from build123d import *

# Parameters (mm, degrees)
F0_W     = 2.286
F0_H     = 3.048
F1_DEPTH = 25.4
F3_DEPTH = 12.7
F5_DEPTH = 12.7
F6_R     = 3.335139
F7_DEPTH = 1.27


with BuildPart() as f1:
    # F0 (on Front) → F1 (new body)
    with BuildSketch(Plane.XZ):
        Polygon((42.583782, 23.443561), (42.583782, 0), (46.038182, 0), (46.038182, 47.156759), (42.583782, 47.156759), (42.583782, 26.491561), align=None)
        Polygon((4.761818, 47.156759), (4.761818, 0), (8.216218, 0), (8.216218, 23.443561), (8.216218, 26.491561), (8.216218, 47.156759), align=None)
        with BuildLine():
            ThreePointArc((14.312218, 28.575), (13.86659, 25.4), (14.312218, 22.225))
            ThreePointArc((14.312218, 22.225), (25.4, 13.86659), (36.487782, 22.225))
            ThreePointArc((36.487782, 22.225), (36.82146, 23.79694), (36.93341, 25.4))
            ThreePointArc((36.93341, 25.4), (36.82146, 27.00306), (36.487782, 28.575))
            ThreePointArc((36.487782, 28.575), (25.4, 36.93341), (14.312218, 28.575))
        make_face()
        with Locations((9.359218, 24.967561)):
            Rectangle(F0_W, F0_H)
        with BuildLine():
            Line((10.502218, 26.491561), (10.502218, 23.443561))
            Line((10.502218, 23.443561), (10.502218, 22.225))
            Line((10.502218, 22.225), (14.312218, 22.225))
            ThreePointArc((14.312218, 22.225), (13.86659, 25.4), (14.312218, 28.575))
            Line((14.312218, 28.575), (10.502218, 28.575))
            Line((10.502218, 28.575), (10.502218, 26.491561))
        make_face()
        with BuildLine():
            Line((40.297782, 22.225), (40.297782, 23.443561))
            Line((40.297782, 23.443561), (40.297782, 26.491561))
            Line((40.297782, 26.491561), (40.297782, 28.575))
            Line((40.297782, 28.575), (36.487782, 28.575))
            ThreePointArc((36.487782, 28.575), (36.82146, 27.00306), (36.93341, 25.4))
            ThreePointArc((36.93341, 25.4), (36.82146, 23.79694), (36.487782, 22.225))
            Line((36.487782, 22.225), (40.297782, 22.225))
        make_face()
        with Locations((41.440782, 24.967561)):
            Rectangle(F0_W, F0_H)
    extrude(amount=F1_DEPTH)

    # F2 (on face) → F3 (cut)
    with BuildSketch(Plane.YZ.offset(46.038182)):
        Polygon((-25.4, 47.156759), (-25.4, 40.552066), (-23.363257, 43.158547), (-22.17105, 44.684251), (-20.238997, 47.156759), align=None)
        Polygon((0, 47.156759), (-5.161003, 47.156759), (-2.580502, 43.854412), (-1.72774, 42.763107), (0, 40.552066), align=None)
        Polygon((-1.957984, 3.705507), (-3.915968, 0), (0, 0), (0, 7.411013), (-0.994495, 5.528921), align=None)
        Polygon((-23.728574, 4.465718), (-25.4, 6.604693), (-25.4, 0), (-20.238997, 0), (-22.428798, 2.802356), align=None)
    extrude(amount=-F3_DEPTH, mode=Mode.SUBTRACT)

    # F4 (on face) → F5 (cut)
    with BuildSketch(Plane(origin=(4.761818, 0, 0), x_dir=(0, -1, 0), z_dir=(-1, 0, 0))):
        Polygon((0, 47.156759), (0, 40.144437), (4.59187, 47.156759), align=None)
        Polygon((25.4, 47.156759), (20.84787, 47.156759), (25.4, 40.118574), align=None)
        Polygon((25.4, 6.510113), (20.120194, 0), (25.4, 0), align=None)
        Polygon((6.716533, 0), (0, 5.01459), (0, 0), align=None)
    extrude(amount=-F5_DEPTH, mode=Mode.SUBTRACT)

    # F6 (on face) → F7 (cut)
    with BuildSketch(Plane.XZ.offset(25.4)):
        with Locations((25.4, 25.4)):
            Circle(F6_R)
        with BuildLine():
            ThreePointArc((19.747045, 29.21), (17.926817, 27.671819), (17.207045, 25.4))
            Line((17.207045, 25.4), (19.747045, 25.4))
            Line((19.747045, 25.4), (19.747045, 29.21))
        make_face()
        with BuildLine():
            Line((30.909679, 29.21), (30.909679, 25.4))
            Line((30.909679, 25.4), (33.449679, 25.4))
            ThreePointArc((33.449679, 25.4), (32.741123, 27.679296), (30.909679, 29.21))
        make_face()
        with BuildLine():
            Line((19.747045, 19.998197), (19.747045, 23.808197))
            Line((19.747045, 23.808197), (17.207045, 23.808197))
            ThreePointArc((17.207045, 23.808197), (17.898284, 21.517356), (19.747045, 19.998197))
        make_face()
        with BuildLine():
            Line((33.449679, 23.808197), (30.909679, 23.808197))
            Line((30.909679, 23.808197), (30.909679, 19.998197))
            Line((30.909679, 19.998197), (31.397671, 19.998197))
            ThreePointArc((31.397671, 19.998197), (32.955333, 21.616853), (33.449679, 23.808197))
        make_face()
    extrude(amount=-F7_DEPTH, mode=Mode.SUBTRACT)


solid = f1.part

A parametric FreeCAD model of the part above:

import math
import FreeCAD as App
import Part
import Sketcher
Q = App.Units.Quantity


def add_polygon(sketch, points):
    """Adds a closed chain of lines whose ends are joined by coincident constraints."""
    first, n = sketch.GeometryCount, len(points)
    for a, b in zip(points, points[1:] + points[:1]):
        sketch.addGeometry(Part.LineSegment(App.Vector(*a, 0), App.Vector(*b, 0)), False)
    for i in range(n):
        sketch.addConstraint(Sketcher.Constraint("Coincident", first + i, 2, first + (i + 1) % n, 1))

doc = App.newDocument("Part")
params = doc.addObject("Spreadsheet::Sheet", "Params")
for row, (alias, value) in enumerate([
    ("sketch1_width", "0.09 in"),
    ("sketch1_width2", "0.15 in"),
    ("sketch1_width3", "0.136 in"),
    ("pad1_length", "1 in"),
    ("sketch2_length", "0.165 in"),
    ("pocket1_length", "0.5 in"),
    ("sketch3_length", "0.33 in"),
    ("pocket2_length", "0.5 in"),
    ("sketch4_width", "0.1 in"),
    ("sketch4_height", "0.15 in"),
    ("pocket3_length", "0.05 in"),
], start=1):
    params.set(f"A{row}", alias)
    params.set(f"B{row}", "=" + value)
    params.setAlias(f"B{row}", alias)

body = doc.addObject("PartDesign::Body", "Body")

sketch1 = body.newObject("Sketcher::SketchObject", "Sketch")
sketch1.AttachmentSupport = (doc.getObject("XZ_Plane"), [""])
sketch1.MapMode = "FlatFace"
sketch1.addGeometry(Part.LineSegment(App.Vector(42.6, 0, 0), App.Vector(46, 0, 0)), False)
sketch1.addGeometry(Part.LineSegment(App.Vector(46, 0, 0), App.Vector(46, 47.2, 0)), False)
sketch1.addGeometry(Part.LineSegment(App.Vector(46, 47.2, 0), App.Vector(42.6, 47.2, 0)), False)
sketch1.addGeometry(Part.LineSegment(App.Vector(42.6, 47.2, 0), App.Vector(42.6, 26.5, 0)), False)
sketch1.addGeometry(Part.LineSegment(App.Vector(42.6, 26.5, 0), App.Vector(40.3, 26.5, 0)), False)
sketch1.addGeometry(Part.LineSegment(App.Vector(40.3, 26.5, 0), App.Vector(40.3, 28.6, 0)), False)
sketch1.addGeometry(Part.LineSegment(App.Vector(40.3, 28.6, 0), App.Vector(36.5, 28.6, 0)), False)
sketch1.addGeometry(Part.ArcOfCircle(Part.Circle(App.Vector(25.4, 25.4, 0), App.Vector(0, 0, 1), 11.5), math.radians(16), math.radians(164)), False)
sketch1.addGeometry(Part.LineSegment(App.Vector(14.3, 28.6, 0), App.Vector(10.5, 28.6, 0)), False)
sketch1.addGeometry(Part.LineSegment(App.Vector(10.5, 28.6, 0), App.Vector(10.5, 26.5, 0)), False)
sketch1.addGeometry(Part.LineSegment(App.Vector(10.5, 26.5, 0), App.Vector(8.2, 26.5, 0)), False)
sketch1.addGeometry(Part.LineSegment(App.Vector(8.2, 26.5, 0), App.Vector(8.2, 47.2, 0)), False)
sketch1.addGeometry(Part.LineSegment(App.Vector(8.2, 47.2, 0), App.Vector(4.8, 47.2, 0)), False)
sketch1.addGeometry(Part.LineSegment(App.Vector(4.8, 47.2, 0), App.Vector(4.8, 0, 0)), False)
sketch1.addGeometry(Part.LineSegment(App.Vector(4.8, 0, 0), App.Vector(8.2, 0, 0)), False)
sketch1.addGeometry(Part.LineSegment(App.Vector(8.2, 0, 0), App.Vector(8.2, 23.4, 0)), False)
sketch1.addGeometry(Part.LineSegment(App.Vector(8.2, 23.4, 0), App.Vector(10.5, 23.4, 0)), False)
sketch1.addGeometry(Part.LineSegment(App.Vector(10.5, 23.4, 0), App.Vector(10.5, 22.2, 0)), False)
sketch1.addGeometry(Part.LineSegment(App.Vector(10.5, 22.2, 0), App.Vector(14.3, 22.2, 0)), False)
sketch1.addGeometry(Part.ArcOfCircle(Part.Circle(App.Vector(25.4, 25.4, 0), App.Vector(0, 0, 1), 11.5), math.radians(-164), math.radians(-16)), False)
sketch1.addGeometry(Part.LineSegment(App.Vector(36.5, 22.2, 0), App.Vector(40.3, 22.2, 0)), False)
sketch1.addGeometry(Part.LineSegment(App.Vector(40.3, 22.2, 0), App.Vector(40.3, 23.4, 0)), False)
sketch1.addGeometry(Part.LineSegment(App.Vector(40.3, 23.4, 0), App.Vector(42.6, 23.4, 0)), False)
sketch1.addGeometry(Part.LineSegment(App.Vector(42.6, 23.4, 0), App.Vector(42.6, 0, 0)), False)
sketch1.addConstraint(Sketcher.Constraint("Coincident", 0, 2, 1, 1))
sketch1.addConstraint(Sketcher.Constraint("Coincident", 1, 2, 2, 1))
sketch1.addConstraint(Sketcher.Constraint("Coincident", 2, 2, 3, 1))
sketch1.addConstraint(Sketcher.Constraint("Coincident", 3, 2, 4, 1))
sketch1.addConstraint(Sketcher.Constraint("Coincident", 4, 2, 5, 1))
sketch1.addConstraint(Sketcher.Constraint("Coincident", 5, 2, 6, 1))
sketch1.addConstraint(Sketcher.Constraint("Coincident", 6, 2, 7, 1))
sketch1.addConstraint(Sketcher.Constraint("Coincident", 7, 2, 8, 1))
sketch1.addConstraint(Sketcher.Constraint("Coincident", 8, 2, 9, 1))
sketch1.addConstraint(Sketcher.Constraint("Coincident", 9, 2, 10, 1))
sketch1.addConstraint(Sketcher.Constraint("Coincident", 10, 2, 11, 1))
sketch1.addConstraint(Sketcher.Constraint("Coincident", 11, 2, 12, 1))
sketch1.addConstraint(Sketcher.Constraint("Coincident", 12, 2, 13, 1))
sketch1.addConstraint(Sketcher.Constraint("Coincident", 13, 2, 14, 1))
sketch1.addConstraint(Sketcher.Constraint("Coincident", 14, 2, 15, 1))
sketch1.addConstraint(Sketcher.Constraint("Coincident", 15, 2, 16, 1))
sketch1.addConstraint(Sketcher.Constraint("Coincident", 16, 2, 17, 1))
sketch1.addConstraint(Sketcher.Constraint("Coincident", 17, 2, 18, 1))
sketch1.addConstraint(Sketcher.Constraint("Coincident", 18, 2, 19, 1))
sketch1.addConstraint(Sketcher.Constraint("Coincident", 19, 2, 20, 1))
sketch1.addConstraint(Sketcher.Constraint("Coincident", 20, 2, 21, 1))
sketch1.addConstraint(Sketcher.Constraint("Coincident", 21, 2, 22, 1))
sketch1.addConstraint(Sketcher.Constraint("Coincident", 22, 2, 23, 1))
sketch1.addConstraint(Sketcher.Constraint("Coincident", 23, 2, 0, 1))
sketch1.addConstraint(Sketcher.Constraint("Horizontal", 0))
sketch1.addConstraint(Sketcher.Constraint("Vertical", 1))
sketch1.addConstraint(Sketcher.Constraint("Horizontal", 2))
sketch1.addConstraint(Sketcher.Constraint("Vertical", 3))
sketch1.addConstraint(Sketcher.Constraint("Horizontal", 4))
sketch1.addConstraint(Sketcher.Constraint("Vertical", 5))
sketch1.addConstraint(Sketcher.Constraint("Horizontal", 6))
sketch1.addConstraint(Sketcher.Constraint("Horizontal", 8))
sketch1.addConstraint(Sketcher.Constraint("Vertical", 9))
sketch1.addConstraint(Sketcher.Constraint("Horizontal", 10))
sketch1.addConstraint(Sketcher.Constraint("Vertical", 11))
sketch1.addConstraint(Sketcher.Constraint("Horizontal", 12))
sketch1.addConstraint(Sketcher.Constraint("Vertical", 13))
sketch1.addConstraint(Sketcher.Constraint("Horizontal", 14))
sketch1.addConstraint(Sketcher.Constraint("Vertical", 15))
sketch1.addConstraint(Sketcher.Constraint("Horizontal", 16))
sketch1.addConstraint(Sketcher.Constraint("Vertical", 17))
sketch1.addConstraint(Sketcher.Constraint("Horizontal", 18))
sketch1.addConstraint(Sketcher.Constraint("Horizontal", 20))
sketch1.addConstraint(Sketcher.Constraint("Vertical", 21))
sketch1.addConstraint(Sketcher.Constraint("Horizontal", 22))
sketch1.addConstraint(Sketcher.Constraint("Vertical", 23))
sketch1.addConstraint(Sketcher.Constraint("Coincident", 19, 3, 7, 3))
sketch1.addConstraint(Sketcher.Constraint("Equal", 7, 19))
sketch1.addConstraint(Sketcher.Constraint("PointOnObject", 0, 2, -1))
sketch1.addConstraint(Sketcher.Constraint("PointOnObject", 13, 2, -1))
sketch1.addConstraint(Sketcher.Constraint("Horizontal", 6, 2, 7, 2))
sketch1.addConstraint(Sketcher.Constraint("Horizontal", 4, 2, 9, 2))
sketch1.addConstraint(Sketcher.Constraint("Horizontal", 2, 2, 11, 2))
sketch1.addConstraint(Sketcher.Constraint("Horizontal", 18, 2, 19, 2))
sketch1.addConstraint(Sketcher.Constraint("Horizontal", 16, 2, 21, 2))
sketch1.addConstraint(Sketcher.Constraint("Vertical", 11, 2, 14, 2))
sketch1.addConstraint(Sketcher.Constraint("Vertical", 9, 2, 16, 2))
sketch1.addConstraint(Sketcher.Constraint("Vertical", 7, 2, 18, 2))
sketch1.addConstraint(Sketcher.Constraint("Vertical", 5, 2, 20, 2))
sketch1.addConstraint(Sketcher.Constraint("Vertical", 3, 2, 22, 2))
sketch1.addConstraint(Sketcher.Constraint("Equal", 6, 8))
sketch1.addConstraint(Sketcher.Constraint("Equal", 4, 10))
sketch1.addConstraint(Sketcher.Constraint("Equal", 2, 12))
sketch1.addConstraint(Sketcher.Constraint("DistanceX", -1, 1, 7, 3, Q("1 in")))
sketch1.addConstraint(Sketcher.Constraint("DistanceY", -1, 1, 7, 3, Q("1 in")))
sketch1.addConstraint(Sketcher.Constraint("DistanceX", 4, 2, 4, 1, Q("0.09 in")))
sketch1.addConstraint(Sketcher.Constraint("DistanceX", 6, 2, 6, 1, Q("0.15 in")))
sketch1.addConstraint(Sketcher.Constraint("DistanceX", 0, 1, 0, 2, Q("0.136 in")))
sketch1.addConstraint(Sketcher.Constraint("DistanceY", 15, 2, 10, 2, Q("0.12 in")))
sketch1.addConstraint(Sketcher.Constraint("DistanceY", 17, 2, 8, 2, Q("0.25 in")))
sketch1.addConstraint(Sketcher.Constraint("Radius", 7, 11.533409))
sketch1.addConstraint(Sketcher.Constraint("DistanceY", 3, 2, 3, 1, 20.665198))
sketch1.addConstraint(Sketcher.Constraint("DistanceY", 1, 1, 1, 2, 47.156759))
sketch1.setExpression("Constraints[65]", "Params.sketch1_width")
sketch1.setExpression("Constraints[66]", "Params.sketch1_width2")
sketch1.setExpression("Constraints[67]", "Params.sketch1_width3")
pad1 = body.newObject("PartDesign::Pad", "Pad")
pad1.Profile = sketch1
pad1.setExpression("Length", "Params.pad1_length")

sketch2 = body.newObject("Sketcher::SketchObject", "Sketch001")
sketch2.AttachmentSupport = (doc.getObject("YZ_Plane"), [""])
sketch2.MapMode = "FlatFace"
sketch2.AttachmentOffset = App.Placement(App.Vector(0, 0, 46.038182), App.Rotation())
add_polygon(sketch2, [(-25.4, 47.2), (-25.4, 40.6), (-23.4, 43.2), (-22.2, 44.7), (-20.2, 47.2)])
add_polygon(sketch2, [(0, 47.2), (-5.2, 47.2), (-2.6, 43.9), (-1.7, 42.8), (0, 40.6)])
add_polygon(sketch2, [(-2, 3.7), (-3.9, 0), (0, 0), (0, 7.4), (-1, 5.5)])
add_polygon(sketch2, [(-23.7, 4.5), (-25.4, 6.6), (-25.4, 0), (-20.2, 0), (-22.4, 2.8)])
sketch2.addConstraint(Sketcher.Constraint("Vertical", 0))
sketch2.addConstraint(Sketcher.Constraint("Horizontal", 4))
sketch2.addConstraint(Sketcher.Constraint("Horizontal", 5))
sketch2.addConstraint(Sketcher.Constraint("Vertical", 9))
sketch2.addConstraint(Sketcher.Constraint("Horizontal", 11))
sketch2.addConstraint(Sketcher.Constraint("Vertical", 12))
sketch2.addConstraint(Sketcher.Constraint("Vertical", 16))
sketch2.addConstraint(Sketcher.Constraint("Horizontal", 17))
sketch2.addConstraint(Sketcher.Constraint("Coincident", 11, 2, -1, 1))
sketch2.addConstraint(Sketcher.Constraint("PointOnObject", 8, 2, -2))
sketch2.addConstraint(Sketcher.Constraint("PointOnObject", 16, 2, -1))
sketch2.addConstraint(Sketcher.Constraint("Parallel", 1, 2))
sketch2.addConstraint(Sketcher.Constraint("Parallel", 2, 3))
sketch2.addConstraint(Sketcher.Constraint("Parallel", 6, 7))
sketch2.addConstraint(Sketcher.Constraint("Parallel", 7, 8))
sketch2.addConstraint(Sketcher.Constraint("Parallel", 10, 13))
sketch2.addConstraint(Sketcher.Constraint("Parallel", 13, 14))
sketch2.addConstraint(Sketcher.Constraint("Parallel", 8, 15))
sketch2.addConstraint(Sketcher.Constraint("Parallel", 15, 18))
sketch2.addConstraint(Sketcher.Constraint("Parallel", 18, 19))
sketch2.addConstraint(Sketcher.Constraint("Horizontal", 4, 2, 5, 2))
sketch2.addConstraint(Sketcher.Constraint("Horizontal", 0, 2, 8, 2))
sketch2.addConstraint(Sketcher.Constraint("Vertical", 4, 2, 15, 2))
sketch2.addConstraint(Sketcher.Constraint("Vertical", 3, 2, 17, 2))
sketch2.addConstraint(Sketcher.Constraint("Equal", 4, 5))
sketch2.addConstraint(Sketcher.Constraint("Equal", 6, 10))
sketch2.addConstraint(Sketcher.Constraint("DistanceX", 0, 2, -1, 1, Q("1 in")))
sketch2.addConstraint(Sketcher.Constraint("Distance", 6, Q("0.165 in")))
sketch2.addConstraint(Sketcher.Constraint("DistanceX", 18, 2, -1, 1, 22.428798))
sketch2.addConstraint(Sketcher.Constraint("DistanceX", 5, 2, 6, 2, 2.580501))
sketch2.addConstraint(Sketcher.Constraint("DistanceY", 12, 2, 6, 2, 36.443399))
sketch2.addConstraint(Sketcher.Constraint("DistanceX", 18, 2, 17, 2, 2.189801))
sketch2.addConstraint(Sketcher.Constraint("Distance", 1, 3.307879))
sketch2.addConstraint(Sketcher.Constraint("Distance", 19, 2.110969))
sketch2.addConstraint(Sketcher.Constraint("DistanceX", 11, 1, 11, 2, 3.915968))
sketch2.addConstraint(Sketcher.Constraint("DistanceY", 12, 1, 12, 2, 7.411013))
sketch2.addConstraint(Sketcher.Constraint("DistanceX", 2, 2, -1, 1, 22.17105))
sketch2.addConstraint(Sketcher.Constraint("DistanceX", 7, 2, -1, 1, 1.72774))
sketch2.addConstraint(Sketcher.Constraint("DistanceY", -1, 1, 13, 2, 5.528921))
sketch2.setExpression("Constraints[47]", "Params.sketch2_length")
pocket1 = body.newObject("PartDesign::Pocket", "Pocket")
pocket1.Profile = sketch2
pocket1.setExpression("Length", "Params.pocket1_length")

sketch3 = body.newObject("Sketcher::SketchObject", "Sketch002")
sketch3.AttachmentSupport = (doc.getObject("YZ_Plane"), [""])
sketch3.MapMode = "FlatFace"
sketch3.AttachmentOffset = App.Placement(App.Vector(0, 0, 4.761818), App.Rotation())
add_polygon(sketch3, [(0, 47.2), (0, 40.1), (-4.6, 47.2)])
add_polygon(sketch3, [(-25.4, 47.2), (-20.8, 47.2), (-25.4, 40.1)])
add_polygon(sketch3, [(-25.4, 6.5), (-20.1, 0), (-25.4, 0)])
add_polygon(sketch3, [(-6.7, 0), (0, 5), (0, 0)])
sketch3.addConstraint(Sketcher.Constraint("Vertical", 0))
sketch3.addConstraint(Sketcher.Constraint("Horizontal", 2))
sketch3.addConstraint(Sketcher.Constraint("Horizontal", 3))
sketch3.addConstraint(Sketcher.Constraint("Vertical", 5))
sketch3.addConstraint(Sketcher.Constraint("Horizontal", 7))
sketch3.addConstraint(Sketcher.Constraint("Vertical", 8))
sketch3.addConstraint(Sketcher.Constraint("Vertical", 10))
sketch3.addConstraint(Sketcher.Constraint("Horizontal", 11))
sketch3.addConstraint(Sketcher.Constraint("Coincident", 10, 2, -1, 1))
sketch3.addConstraint(Sketcher.Constraint("PointOnObject", 0, 2, -2))
sketch3.addConstraint(Sketcher.Constraint("PointOnObject", 6, 2, -1))
sketch3.addConstraint(Sketcher.Constraint("Horizontal", 2, 2, 3, 2))
sketch3.addConstraint(Sketcher.Constraint("Vertical", 5, 2, 7, 2))
sketch3.addConstraint(Sketcher.Constraint("Equal", 1, 4))
sketch3.addConstraint(Sketcher.Constraint("Equal", 4, 6))
sketch3.addConstraint(Sketcher.Constraint("Equal", 6, 9))
sketch3.addConstraint(Sketcher.Constraint("DistanceX", 4, 2, -1, 1, Q("1 in")))
sketch3.addConstraint(Sketcher.Constraint("Distance", 1, Q("0.33 in")))
sketch3.addConstraint(Sketcher.Constraint("DistanceX", 3, 2, 1, 2, Q("0.64 in")))
sketch3.addConstraint(Sketcher.Constraint("DistanceX", 2, 1, 2, 2, 4.59187))
sketch3.addConstraint(Sketcher.Constraint("DistanceY", 10, 2, 10, 1, 5.01459))
sketch3.addConstraint(Sketcher.Constraint("DistanceX", 7, 2, 7, 1, 5.279806))
sketch3.addConstraint(Sketcher.Constraint("DistanceY", -1, 1, 1, 2, 47.156759))
sketch3.setExpression("Constraints[29]", "Params.sketch3_length")
pocket2 = body.newObject("PartDesign::Pocket", "Pocket001")
pocket2.Profile = sketch3
pocket2.setExpression("Length", "Params.pocket2_length")
pocket2.Reversed = True

sketch4 = body.newObject("Sketcher::SketchObject", "Sketch003")
sketch4.AttachmentSupport = (doc.getObject("XZ_Plane"), [""])
sketch4.MapMode = "FlatFace"
sketch4.AttachmentOffset = App.Placement(App.Vector(0, 0, 1 * 25.4), App.Rotation())
sketch4.addGeometry(Part.Circle(App.Vector(25.4, 25.4, 0), App.Vector(0, 0, 1), 3.34), False)
sketch4.addGeometry(Part.ArcOfCircle(Part.Circle(App.Vector(21.5, 25.29, 0), App.Vector(0, 0, 1), 4.29), math.radians(114), math.radians(179)), False)
sketch4.addGeometry(Part.LineSegment(App.Vector(17.21, 25.4, 0), App.Vector(19.75, 25.4, 0)), False)
sketch4.addGeometry(Part.LineSegment(App.Vector(19.75, 25.4, 0), App.Vector(19.75, 29.21, 0)), False)
sketch4.addGeometry(Part.LineSegment(App.Vector(30.91, 29.21, 0), App.Vector(30.91, 25.4, 0)), False)
sketch4.addGeometry(Part.LineSegment(App.Vector(30.91, 25.4, 0), App.Vector(33.45, 25.4, 0)), False)
sketch4.addGeometry(Part.ArcOfCircle(Part.Circle(App.Vector(29.23, 25.34, 0), App.Vector(0, 0, 1), 4.22), math.radians(1), math.radians(67)), False)
sketch4.addGeometry(Part.LineSegment(App.Vector(19.75, 20, 0), App.Vector(19.75, 23.81, 0)), False)
sketch4.addGeometry(Part.LineSegment(App.Vector(19.75, 23.81, 0), App.Vector(17.21, 23.81, 0)), False)
sketch4.addGeometry(Part.ArcOfCircle(Part.Circle(App.Vector(21.32, 23.8, 0), App.Vector(0, 0, 1), 4.12), math.radians(180), math.radians(247)), False)
sketch4.addGeometry(Part.LineSegment(App.Vector(33.45, 23.81, 0), App.Vector(30.91, 23.81, 0)), False)
sketch4.addGeometry(Part.LineSegment(App.Vector(30.91, 23.81, 0), App.Vector(30.91, 20, 0)), False)
sketch4.addGeometry(Part.LineSegment(App.Vector(30.91, 20, 0), App.Vector(31.4, 20, 0)), False)
sketch4.addGeometry(Part.ArcOfCircle(Part.Circle(App.Vector(29.28, 23.6, 0), App.Vector(0, 0, 1), 4.18), math.radians(-59), math.radians(3)), False)
sketch4.addConstraint(Sketcher.Constraint("Coincident", 1, 2, 2, 1))
sketch4.addConstraint(Sketcher.Constraint("Coincident", 2, 2, 3, 1))
sketch4.addConstraint(Sketcher.Constraint("Coincident", 3, 2, 1, 1))
sketch4.addConstraint(Sketcher.Constraint("Coincident", 4, 2, 5, 1))
sketch4.addConstraint(Sketcher.Constraint("Coincident", 5, 2, 6, 1))
sketch4.addConstraint(Sketcher.Constraint("Coincident", 6, 2, 4, 1))
sketch4.addConstraint(Sketcher.Constraint("Coincident", 7, 2, 8, 1))
sketch4.addConstraint(Sketcher.Constraint("Coincident", 8, 2, 9, 1))
sketch4.addConstraint(Sketcher.Constraint("Coincident", 9, 2, 7, 1))
sketch4.addConstraint(Sketcher.Constraint("Coincident", 10, 2, 11, 1))
sketch4.addConstraint(Sketcher.Constraint("Coincident", 11, 2, 12, 1))
sketch4.addConstraint(Sketcher.Constraint("Coincident", 12, 2, 13, 1))
sketch4.addConstraint(Sketcher.Constraint("Coincident", 13, 2, 10, 1))
sketch4.addConstraint(Sketcher.Constraint("Horizontal", 2))
sketch4.addConstraint(Sketcher.Constraint("Vertical", 3))
sketch4.addConstraint(Sketcher.Constraint("Vertical", 4))
sketch4.addConstraint(Sketcher.Constraint("Horizontal", 5))
sketch4.addConstraint(Sketcher.Constraint("Vertical", 7))
sketch4.addConstraint(Sketcher.Constraint("Horizontal", 8))
sketch4.addConstraint(Sketcher.Constraint("Horizontal", 10))
sketch4.addConstraint(Sketcher.Constraint("Vertical", 11))
sketch4.addConstraint(Sketcher.Constraint("Horizontal", 12))
sketch4.addConstraint(Sketcher.Constraint("Horizontal", 0, 3, 1, 2))
sketch4.addConstraint(Sketcher.Constraint("Horizontal", 2, 2, 4, 2))
sketch4.addConstraint(Sketcher.Constraint("Horizontal", 3, 2, 6, 2))
sketch4.addConstraint(Sketcher.Constraint("Horizontal", 8, 2, 10, 2))
sketch4.addConstraint(Sketcher.Constraint("Horizontal", 9, 2, 11, 2))
sketch4.addConstraint(Sketcher.Constraint("Vertical", 3, 2, 7, 2))
sketch4.addConstraint(Sketcher.Constraint("Vertical", 1, 2, 8, 2))
sketch4.addConstraint(Sketcher.Constraint("Vertical", 6, 2, 10, 2))
sketch4.addConstraint(Sketcher.Constraint("Vertical", 5, 2, 13, 2))
sketch4.addConstraint(Sketcher.Constraint("Equal", 2, 5))
sketch4.addConstraint(Sketcher.Constraint("Equal", 4, 7))
sketch4.addConstraint(Sketcher.Constraint("DistanceX", 2, 1, 2, 2, Q("0.1 in")))
sketch4.addConstraint(Sketcher.Constraint("DistanceX", -1, 1, 0, 3, Q("1 in")))
sketch4.addConstraint(Sketcher.Constraint("DistanceY", -1, 1, 0, 3, Q("1 in")))
sketch4.addConstraint(Sketcher.Constraint("DistanceY", 3, 1, 3, 2, Q("0.15 in")))
sketch4.addConstraint(Sketcher.Constraint("Diameter", 0, 6.670278))
sketch4.addConstraint(Sketcher.Constraint("Radius", 1, 4.294043))
sketch4.addConstraint(Sketcher.Constraint("Radius", 6, 4.221607))
sketch4.addConstraint(Sketcher.Constraint("Radius", 9, 4.115793))
sketch4.addConstraint(Sketcher.Constraint("Radius", 13, 4.178385))
sketch4.addConstraint(Sketcher.Constraint("DistanceX", 12, 1, 12, 2, 0.487992))
sketch4.addConstraint(Sketcher.Constraint("DistanceX", 1, 3, 13, 3, 7.776899))
sketch4.addConstraint(Sketcher.Constraint("DistanceX", -1, 1, 9, 3, 21.322831))
sketch4.addConstraint(Sketcher.Constraint("DistanceY", -1, 1, 9, 3, 23.800388))
sketch4.setExpression("Constraints[33]", "Params.sketch4_width")
sketch4.setExpression("Constraints[36]", "Params.sketch4_height")
pocket3 = body.newObject("PartDesign::Pocket", "Pocket002")
pocket3.Profile = sketch4
pocket3.setExpression("Length", "Params.pocket3_length")

doc.recompute()
